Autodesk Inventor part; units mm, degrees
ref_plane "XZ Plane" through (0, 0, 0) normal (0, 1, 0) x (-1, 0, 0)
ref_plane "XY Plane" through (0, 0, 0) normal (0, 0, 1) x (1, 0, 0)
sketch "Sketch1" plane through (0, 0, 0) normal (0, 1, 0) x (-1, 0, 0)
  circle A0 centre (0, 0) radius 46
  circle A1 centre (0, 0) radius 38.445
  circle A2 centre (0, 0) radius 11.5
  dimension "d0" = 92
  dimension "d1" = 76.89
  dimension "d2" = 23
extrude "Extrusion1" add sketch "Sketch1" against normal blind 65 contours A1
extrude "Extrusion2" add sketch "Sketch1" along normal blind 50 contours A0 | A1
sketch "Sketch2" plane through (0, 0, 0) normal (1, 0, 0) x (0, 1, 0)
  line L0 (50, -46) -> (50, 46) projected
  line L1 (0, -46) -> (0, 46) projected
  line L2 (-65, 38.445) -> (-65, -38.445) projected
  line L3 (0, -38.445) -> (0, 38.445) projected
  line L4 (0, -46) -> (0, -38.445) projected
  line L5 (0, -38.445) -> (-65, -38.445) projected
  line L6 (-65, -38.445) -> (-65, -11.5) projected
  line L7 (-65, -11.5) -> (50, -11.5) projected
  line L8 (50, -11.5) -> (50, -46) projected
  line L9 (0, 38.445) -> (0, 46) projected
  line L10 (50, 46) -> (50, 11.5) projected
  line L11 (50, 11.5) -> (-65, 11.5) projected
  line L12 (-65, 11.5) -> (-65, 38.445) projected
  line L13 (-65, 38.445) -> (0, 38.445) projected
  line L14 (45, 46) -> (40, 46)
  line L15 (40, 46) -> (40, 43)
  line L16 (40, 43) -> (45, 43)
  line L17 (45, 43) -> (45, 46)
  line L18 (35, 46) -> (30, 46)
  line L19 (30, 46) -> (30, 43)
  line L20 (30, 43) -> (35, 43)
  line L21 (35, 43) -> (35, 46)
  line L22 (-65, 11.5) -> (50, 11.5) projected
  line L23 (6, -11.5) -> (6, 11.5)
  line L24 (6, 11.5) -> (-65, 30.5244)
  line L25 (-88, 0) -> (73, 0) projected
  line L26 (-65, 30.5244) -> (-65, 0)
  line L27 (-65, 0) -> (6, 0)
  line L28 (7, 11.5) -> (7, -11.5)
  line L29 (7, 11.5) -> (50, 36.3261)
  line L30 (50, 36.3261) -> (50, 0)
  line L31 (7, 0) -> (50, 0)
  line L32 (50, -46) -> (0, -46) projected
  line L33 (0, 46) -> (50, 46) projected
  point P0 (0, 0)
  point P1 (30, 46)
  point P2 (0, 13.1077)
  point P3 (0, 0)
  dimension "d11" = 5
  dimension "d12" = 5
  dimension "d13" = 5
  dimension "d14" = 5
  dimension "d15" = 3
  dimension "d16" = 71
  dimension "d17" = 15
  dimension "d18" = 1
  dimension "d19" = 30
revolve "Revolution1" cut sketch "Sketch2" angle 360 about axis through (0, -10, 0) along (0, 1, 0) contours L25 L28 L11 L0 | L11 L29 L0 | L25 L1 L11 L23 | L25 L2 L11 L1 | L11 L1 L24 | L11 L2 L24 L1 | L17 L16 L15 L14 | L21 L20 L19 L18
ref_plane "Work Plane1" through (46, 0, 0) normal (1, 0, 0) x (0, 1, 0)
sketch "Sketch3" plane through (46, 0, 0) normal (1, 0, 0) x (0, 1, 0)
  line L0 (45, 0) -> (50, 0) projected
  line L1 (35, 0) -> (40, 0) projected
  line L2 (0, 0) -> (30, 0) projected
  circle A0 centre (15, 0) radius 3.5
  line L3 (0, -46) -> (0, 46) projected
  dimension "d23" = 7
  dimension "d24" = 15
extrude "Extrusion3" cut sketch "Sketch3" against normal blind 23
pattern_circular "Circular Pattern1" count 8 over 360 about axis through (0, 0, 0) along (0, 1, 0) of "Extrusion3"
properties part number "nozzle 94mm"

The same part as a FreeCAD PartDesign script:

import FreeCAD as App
import Part
import Sketcher
from FreeCAD import Vector
Q = App.Units.Quantity

doc = App.newDocument("Part")
params = doc.addObject("Spreadsheet::Sheet", "Params")
for row, (alias, value) in enumerate([
    ("sketch1_diameter", "23 mm"),
    ("sketch1_diameter2", "76.89 mm"),
    ("pad1_length", "65 mm"),
    ("sketch2_diameter", "92 mm"),
    ("sketch2_diameter2", "23 mm"),
    ("pad2_length", "50 mm"),
    ("sketch3_width", "71 mm"),
    ("sketch3_width2", "5 mm"),
    ("sketch3_height", "3 mm"),
    ("sketch3_width3", "43 mm"),
    ("sketch3_height2", "11.5 mm"),
    ("groove_angle", "360 deg"),
    ("sketch4_diameter", "7 mm"),
    ("pocket1_length", "23 mm"),
], start=1):
    params.set(f"A{row}", alias)
    params.set(f"B{row}", "=" + value)
    params.setAlias(f"B{row}", alias)

body = doc.addObject("PartDesign::Body", "Body")

# Sketch on XZ plane
sketch1 = doc.addObject("Sketcher::SketchObject", "Sketch")
body.addObject(sketch1)
sketch1.AttachmentSupport = (doc.XZ_Plane, [""])
sketch1.MapMode = "FlatFace"
sketch1.addGeometry([
    Part.Circle(Vector(0, 0, 0), Vector(0, 0, 1), 38),
    Part.Circle(Vector(0, 0, 0), Vector(0, 0, 1), 12),
], False)
sketch1.addConstraint([
    Sketcher.Constraint("Coincident", 0, 3, -1, 1),
    Sketcher.Constraint("Coincident", 1, 3, -1, 1),
    Sketcher.Constraint("Diameter", 1, Q("23 mm")),
    Sketcher.Constraint("Diameter", 0, Q("76.89 mm")),
])
sketch1.setExpression("Constraints[2]", "Params.sketch1_diameter")
sketch1.setExpression("Constraints[3]", "Params.sketch1_diameter2")
pad1 = doc.addObject("PartDesign::Pad", "Pad")
body.addObject(pad1)
pad1.Profile = sketch1
pad1.setExpression("Length", "Params.pad1_length")

# Sketch on XZ plane
sketch2 = doc.addObject("Sketcher::SketchObject", "Sketch001")
body.addObject(sketch2)
sketch2.AttachmentSupport = (doc.XZ_Plane, [""])
sketch2.MapMode = "FlatFace"
sketch2.addGeometry([
    Part.Circle(Vector(0, 0, 0), Vector(0, 0, 1), 46),
    Part.Circle(Vector(0, 0, 0), Vector(0, 0, 1), 12),
], False)
sketch2.addConstraint([
    Sketcher.Constraint("Coincident", 0, 3, -1, 1),
    Sketcher.Constraint("Coincident", 1, 3, -1, 1),
    Sketcher.Constraint("Diameter", 0, Q("92 mm")),
    Sketcher.Constraint("Diameter", 1, Q("23 mm")),
])
sketch2.setExpression("Constraints[2]", "Params.sketch2_diameter")
sketch2.setExpression("Constraints[3]", "Params.sketch2_diameter2")
pad2 = doc.addObject("PartDesign::Pad", "Pad001")
body.addObject(pad2)
pad2.Profile = sketch2
pad2.setExpression("Length", "Params.pad2_length")
pad2.Reversed = True

# Sketch on YZ plane
sketch3 = doc.addObject("Sketcher::SketchObject", "Sketch002")
body.addObject(sketch3)
sketch3.AttachmentSupport = (doc.YZ_Plane, [""])
sketch3.MapMode = "FlatFace"
sketch3.addGeometry([
    Part.LineSegment(Vector(7, 0, 0), Vector(50, 0, 0)),  # 0
    Part.LineSegment(Vector(50, 0, 0), Vector(50, 36.3, 0)),  # 1
    Part.LineSegment(Vector(50, 36.3, 0), Vector(7, 11.5, 0)),  # 2
    Part.LineSegment(Vector(7, 11.5, 0), Vector(7, 0, 0)),  # 3
    Part.LineSegment(Vector(6, 0, 0), Vector(6, 11.5, 0)),  # 4
    Part.LineSegment(Vector(6, 11.5, 0), Vector(-65, 30.5, 0)),  # 5
    Part.LineSegment(Vector(-65, 30.5, 0), Vector(-65, 0, 0)),  # 6
    Part.LineSegment(Vector(-65, 0, 0), Vector(6, 0, 0)),  # 7
    Part.LineSegment(Vector(45, 43, 0), Vector(45, 46, 0)),  # 8
    Part.LineSegment(Vector(45, 46, 0), Vector(40, 46, 0)),  # 9
    Part.LineSegment(Vector(40, 46, 0), Vector(40, 43, 0)),  # 10
    Part.LineSegment(Vector(40, 43, 0), Vector(45, 43, 0)),  # 11
    Part.LineSegment(Vector(35, 43, 0), Vector(35, 46, 0)),  # 12
    Part.LineSegment(Vector(35, 46, 0), Vector(30, 46, 0)),  # 13
    Part.LineSegment(Vector(30, 46, 0), Vector(30, 43, 0)),  # 14
    Part.LineSegment(Vector(30, 43, 0), Vector(35, 43, 0)),  # 15
], False)
sketch3.addConstraint([
    Sketcher.Constraint("Coincident", 0, 2, 1, 1),
    Sketcher.Constraint("Coincident", 1, 2, 2, 1),
    Sketcher.Constraint("Coincident", 2, 2, 3, 1),
    Sketcher.Constraint("Coincident", 3, 2, 0, 1),
    Sketcher.Constraint("Coincident", 4, 2, 5, 1),
    Sketcher.Constraint("Coincident", 5, 2, 6, 1),
    Sketcher.Constraint("Coincident", 6, 2, 7, 1),
    Sketcher.Constraint("Coincident", 7, 2, 4, 1),
    Sketcher.Constraint("Coincident", 8, 2, 9, 1),
    Sketcher.Constraint("Coincident", 9, 2, 10, 1),
    Sketcher.Constraint("Coincident", 10, 2, 11, 1),
    Sketcher.Constraint("Coincident", 11, 2, 8, 1),
    Sketcher.Constraint("Coincident", 12, 2, 13, 1),
    Sketcher.Constraint("Coincident", 13, 2, 14, 1),
    Sketcher.Constraint("Coincident", 14, 2, 15, 1),
    Sketcher.Constraint("Coincident", 15, 2, 12, 1),
    Sketcher.Constraint("Horizontal", 0),
    Sketcher.Constraint("Vertical", 1),
    Sketcher.Constraint("Vertical", 3),
    Sketcher.Constraint("Vertical", 4),
    Sketcher.Constraint("Vertical", 6),
    Sketcher.Constraint("Horizontal", 7),
    Sketcher.Constraint("Vertical", 8),
    Sketcher.Constraint("Horizontal", 9),
    Sketcher.Constraint("Vertical", 10),
    Sketcher.Constraint("Horizontal", 11),
    Sketcher.Constraint("Vertical", 12),
    Sketcher.Constraint("Horizontal", 13),
    Sketcher.Constraint("Vertical", 14),
    Sketcher.Constraint("Horizontal", 15),
    Sketcher.Constraint("PointOnObject", 0, 2, -1),
    Sketcher.Constraint("PointOnObject", 6, 2, -1),
    Sketcher.Constraint("Horizontal", 2, 2, 4, 2),
    Sketcher.Constraint("Horizontal", 9, 2, 12, 2),
    Sketcher.Constraint("Horizontal", 11, 2, 14, 2),
    Sketcher.Constraint("Equal", 11, 13),
    Sketcher.Constraint("DistanceX", 7, 1, 7, 2, Q("71 mm")),
    Sketcher.Constraint("DistanceX", 9, 2, 9, 1, Q("5 mm")),
    Sketcher.Constraint("DistanceY", 8, 1, 8, 2, Q("3 mm")),
    Sketcher.Constraint("DistanceX", -1, 1, 13, 2, Q("30 mm")),
    Sketcher.Constraint("DistanceX", 4, 2, 2, 2, Q("1 mm")),
    Sketcher.Constraint("DistanceX", 8, 2, 1, 2, Q("5 mm")),
    Sketcher.Constraint("DistanceX", 12, 2, 9, 2, Q("5 mm")),
    Sketcher.Constraint("DistanceX", 0, 1, 0, 2, Q("43 mm")),
    Sketcher.Constraint("Angle", 2, Q("-150 deg")),
    Sketcher.Constraint("Angle", 5, Q("165 deg")),
    Sketcher.Constraint("DistanceY", 3, 2, 3, 1, Q("11.5 mm")),
    Sketcher.Constraint("DistanceY", -1, 1, 8, 2, Q("46 mm")),
])
sketch3.setExpression("Constraints[36]", "Params.sketch3_width")
sketch3.setExpression("Constraints[37]", "Params.sketch3_width2")
sketch3.setExpression("Constraints[38]", "Params.sketch3_height")
sketch3.setExpression("Constraints[43]", "Params.sketch3_width3")
sketch3.setExpression("Constraints[46]", "Params.sketch3_height2")
groove = doc.addObject("PartDesign::Groove", "Groove")
body.addObject(groove)
groove.Profile = sketch3
groove.ReferenceAxis = (sketch3, ["H_Axis"])
groove.setExpression("Angle", "Params.groove_angle")

# Sketch on YZ plane
sketch4 = doc.addObject("Sketcher::SketchObject", "Sketch003")
body.addObject(sketch4)
sketch4.AttachmentSupport = (doc.YZ_Plane, [""])
sketch4.MapMode = "FlatFace"
sketch4.AttachmentOffset = App.Placement(Vector(0, 0, 46), App.Rotation())
sketch4.addGeometry(Part.Circle(Vector(15, 0, 0), Vector(0, 0, 1), 3.5), False)
sketch4.addConstraint([
    Sketcher.Constraint("PointOnObject", 0, 3, -1),
    Sketcher.Constraint("Diameter", 0, Q("7 mm")),
    Sketcher.Constraint("DistanceX", -1, 1, 0, 3, Q("15 mm")),
])
sketch4.setExpression("Constraints[1]", "Params.sketch4_diameter")
pocket1 = doc.addObject("PartDesign::Pocket", "Pocket")
body.addObject(pocket1)
pocket1.Profile = sketch4
pocket1.setExpression("Length", "Params.pocket1_length")
doc.recompute()

polarpattern = doc.addObject("PartDesign::PolarPattern", "PolarPattern")
body.addObject(polarpattern)
polarpattern.Originals = [pocket1]
polarpattern.Axis = (doc.Y_Axis, [""])
polarpattern.Angle = 360
polarpattern.Occurrences = 8
body.Tip = polarpattern

doc.recompute()
